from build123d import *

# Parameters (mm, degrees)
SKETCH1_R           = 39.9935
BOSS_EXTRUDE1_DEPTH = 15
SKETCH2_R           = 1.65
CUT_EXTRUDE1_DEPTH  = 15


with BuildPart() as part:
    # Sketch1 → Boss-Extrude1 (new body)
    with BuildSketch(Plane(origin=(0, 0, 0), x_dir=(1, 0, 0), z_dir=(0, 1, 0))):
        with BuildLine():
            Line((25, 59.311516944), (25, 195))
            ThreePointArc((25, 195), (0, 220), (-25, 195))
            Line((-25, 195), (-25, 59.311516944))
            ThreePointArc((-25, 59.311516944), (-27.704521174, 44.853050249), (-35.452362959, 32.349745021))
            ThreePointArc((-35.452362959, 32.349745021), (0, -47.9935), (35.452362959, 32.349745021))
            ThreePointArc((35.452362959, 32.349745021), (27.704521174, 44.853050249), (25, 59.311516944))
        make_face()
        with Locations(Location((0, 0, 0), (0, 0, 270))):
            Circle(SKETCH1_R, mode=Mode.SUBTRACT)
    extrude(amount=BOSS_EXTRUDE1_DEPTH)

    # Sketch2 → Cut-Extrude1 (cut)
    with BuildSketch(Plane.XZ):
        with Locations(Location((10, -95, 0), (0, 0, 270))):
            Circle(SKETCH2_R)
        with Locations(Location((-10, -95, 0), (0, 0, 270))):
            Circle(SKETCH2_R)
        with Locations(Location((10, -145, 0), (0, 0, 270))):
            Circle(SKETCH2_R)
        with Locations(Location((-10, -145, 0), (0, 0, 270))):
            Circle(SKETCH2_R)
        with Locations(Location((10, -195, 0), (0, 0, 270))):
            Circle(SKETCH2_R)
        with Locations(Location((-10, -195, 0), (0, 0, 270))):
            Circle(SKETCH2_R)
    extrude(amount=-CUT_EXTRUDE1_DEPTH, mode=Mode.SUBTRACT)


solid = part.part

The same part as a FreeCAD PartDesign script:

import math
import FreeCAD as App
import Part
import Sketcher
Q = App.Units.Quantity

doc = App.newDocument("Part")
body = doc.addObject("PartDesign::Body", "Body")

sketch1 = body.newObject("Sketcher::SketchObject", "Sketch")
sketch1.AttachmentSupport = (doc.getObject("XZ_Plane"), [""])
sketch1.MapMode = "FlatFace"
sketch1.addGeometry([
    Part.LineSegment(App.Vector(25, -59, 0), App.Vector(25, -195, 0)),
    Part.ArcOfCircle(Part.Circle(App.Vector(0, -195, 0), App.Vector(0, 0, 1), 25), math.radians(180), math.radians(360)),
    Part.LineSegment(App.Vector(-25, -195, 0), App.Vector(-25, -59, 0)),
    Part.ArcOfCircle(Part.Circle(App.Vector(-65, -59, 0), App.Vector(0, 0, 1), 40), math.radians(0), math.radians(42)),
    Part.ArcOfCircle(Part.Circle(App.Vector(0, 0, 0), App.Vector(0, 0, 1), 48), math.radians(-42), math.radians(222)),
    Part.ArcOfCircle(Part.Circle(App.Vector(65, -59, 0), App.Vector(0, 0, 1), 40), math.radians(138), math.radians(180)),
    Part.Circle(App.Vector(0, 0, 0), App.Vector(0, 0, 1), 40),
], False)
sketch1.addConstraint([
    Sketcher.Constraint("Tangent", 0, 2, 1, 2),
    Sketcher.Constraint("Tangent", 1, 1, 2, 1),
    Sketcher.Constraint("Tangent", 2, 2, 3, 1),
    Sketcher.Constraint("Tangent", 3, 2, 4, 2),
    Sketcher.Constraint("Tangent", 4, 1, 5, 1),
    Sketcher.Constraint("Tangent", 5, 2, 0, 1),
    Sketcher.Constraint("Vertical", 0),
    Sketcher.Constraint("Vertical", 2),
    Sketcher.Constraint("Coincident", 4, 3, -1, 1),
    Sketcher.Constraint("Coincident", 6, 3, -1, 1),
    Sketcher.Constraint("Equal", 3, 5),
    Sketcher.Constraint("PointOnObject", 1, 3, -2),
    Sketcher.Constraint("Radius", 1, Q("25 mm")),
    Sketcher.Constraint("Radius", 3, Q("40 mm")),
    Sketcher.Constraint("Diameter", 6, Q("79.987 mm")),
    Sketcher.Constraint("DistanceY", 1, 3, -1, 1, Q("195 mm")),
    Sketcher.Constraint("Radius", 4, Q("47.9935 mm")),
])
pad1 = body.newObject("PartDesign::Pad", "Pad")
pad1.Profile = sketch1
pad1.Length = 15
pad1.Reversed = True

sketch2 = body.newObject("Sketcher::SketchObject", "Sketch001")
sketch2.AttachmentSupport = (doc.getObject("XZ_Plane"), [""])
sketch2.MapMode = "FlatFace"
sketch2.addGeometry([
    Part.Circle(App.Vector(10, -95, 0), App.Vector(0, 0, 1), 1.6),
    Part.Circle(App.Vector(-10, -95, 0), App.Vector(0, 0, 1), 1.6),
    Part.Circle(App.Vector(10, -145, 0), App.Vector(0, 0, 1), 1.6),
    Part.Circle(App.Vector(-10, -145, 0), App.Vector(0, 0, 1), 1.6),
    Part.Circle(App.Vector(10, -195, 0), App.Vector(0, 0, 1), 1.6),
    Part.Circle(App.Vector(-10, -195, 0), App.Vector(0, 0, 1), 1.6),
], False)
sketch2.addConstraint([
    Sketcher.Constraint("Equal", 0, 1),
    Sketcher.Constraint("Equal", 1, 2),
    Sketcher.Constraint("Equal", 2, 3),
    Sketcher.Constraint("Equal", 3, 4),
    Sketcher.Constraint("Equal", 4, 5),
    Sketcher.Constraint("Symmetric", 0, 3, 1, 3, -2),
    Sketcher.Constraint("Symmetric", 2, 3, 3, 3, -2),
    Sketcher.Constraint("Symmetric", 4, 3, 5, 3, -2),
    Sketcher.Constraint("Vertical", 0, 3, 2, 3),
    Sketcher.Constraint("Vertical", 2, 3, 4, 3),
    Sketcher.Constraint("Diameter", 0, Q("3.3 mm")),
    Sketcher.Constraint("DistanceX", -1, 1, 0, 3, Q("10 mm")),
    Sketcher.Constraint("DistanceY", 0, 3, -1, 1, Q("95 mm")),
    Sketcher.Constraint("DistanceY", 2, 3, -1, 1, Q("145 mm")),
    Sketcher.Constraint("DistanceY", 4, 3, -1, 1, Q("195 mm")),
])
pocket1 = body.newObject("PartDesign::Pocket", "Pocket")
pocket1.Profile = sketch2
pocket1.Length = 15

doc.recompute()
